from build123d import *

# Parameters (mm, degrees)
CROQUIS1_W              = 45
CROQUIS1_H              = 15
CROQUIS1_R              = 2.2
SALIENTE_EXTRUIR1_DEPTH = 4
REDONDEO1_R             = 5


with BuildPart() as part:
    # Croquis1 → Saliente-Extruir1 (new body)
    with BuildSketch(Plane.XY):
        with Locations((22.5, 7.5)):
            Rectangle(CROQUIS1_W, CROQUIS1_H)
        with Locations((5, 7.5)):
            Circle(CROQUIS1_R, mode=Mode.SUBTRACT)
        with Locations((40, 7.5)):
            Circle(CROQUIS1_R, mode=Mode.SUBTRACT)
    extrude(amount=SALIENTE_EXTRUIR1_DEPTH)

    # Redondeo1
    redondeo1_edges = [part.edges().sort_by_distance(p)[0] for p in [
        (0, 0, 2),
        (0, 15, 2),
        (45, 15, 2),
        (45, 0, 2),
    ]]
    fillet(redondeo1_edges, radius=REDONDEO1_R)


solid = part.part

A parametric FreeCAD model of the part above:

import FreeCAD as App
import Part
import Sketcher
from FreeCAD import Vector
Q = App.Units.Quantity


def edges_at(feature, points):
    """Names of the edges that pass closest to the given points."""
    edges = feature.Shape.Edges
    near = lambda p: min(range(len(edges)), key=lambda i: edges[i].distToShape(Part.Vertex(*p))[0])
    return sorted({f"Edge{near(p) + 1}" for p in points})

doc = App.newDocument("Part")
params = doc.addObject("Spreadsheet::Sheet", "Params")
for row, (alias, value) in enumerate([
    ("sketch1_diameter", "4.4 mm"),
    ("sketch1_width", "45 mm"),
    ("sketch1_height", "15 mm"),
    ("pad1_length", "4 mm"),
    ("fillet_radius", "5 mm"),
], start=1):
    params.set(f"A{row}", alias)
    params.set(f"B{row}", "=" + value)
    params.setAlias(f"B{row}", alias)

body = doc.addObject("PartDesign::Body", "Body")

sketch1 = doc.addObject("Sketcher::SketchObject", "Sketch")
body.addObject(sketch1)
sketch1.AttachmentSupport = (doc.XY_Plane, [""])
sketch1.MapMode = "FlatFace"
sketch1.addGeometry(Part.LineSegment(Vector(0, 15, 0), Vector(0, 0, 0)), False)
sketch1.addGeometry(Part.LineSegment(Vector(0, 0, 0), Vector(45, 0, 0)), False)
sketch1.addGeometry(Part.LineSegment(Vector(45, 0, 0), Vector(45, 15, 0)), False)
sketch1.addGeometry(Part.LineSegment(Vector(45, 15, 0), Vector(0, 15, 0)), False)
sketch1.addGeometry(Part.Circle(Vector(5, 7.5, 0), Vector(0, 0, 1), 2.2), False)
sketch1.addGeometry(Part.Circle(Vector(40, 7.5, 0), Vector(0, 0, 1), 2.2), False)
sketch1.addConstraint(Sketcher.Constraint("Coincident", 0, 2, 1, 1))
sketch1.addConstraint(Sketcher.Constraint("Coincident", 1, 2, 2, 1))
sketch1.addConstraint(Sketcher.Constraint("Coincident", 2, 2, 3, 1))
sketch1.addConstraint(Sketcher.Constraint("Coincident", 3, 2, 0, 1))
sketch1.addConstraint(Sketcher.Constraint("Vertical", 0))
sketch1.addConstraint(Sketcher.Constraint("Horizontal", 1))
sketch1.addConstraint(Sketcher.Constraint("Vertical", 2))
sketch1.addConstraint(Sketcher.Constraint("Horizontal", 3))
sketch1.addConstraint(Sketcher.Constraint("Coincident", 0, 2, -1, 1))
sketch1.addConstraint(Sketcher.Constraint("Equal", 4, 5))
sketch1.addConstraint(Sketcher.Constraint("Horizontal", 4, 3, 5, 3))
sketch1.addConstraint(Sketcher.Constraint("Diameter", 4, Q("4.4 mm")))
sketch1.addConstraint(Sketcher.Constraint("DistanceX", 1, 1, 1, 2, Q("45 mm")))
sketch1.addConstraint(Sketcher.Constraint("DistanceY", 0, 2, 0, 1, Q("15 mm")))
sketch1.addConstraint(Sketcher.Constraint("DistanceX", -1, 1, 4, 3, Q("5 mm")))
sketch1.addConstraint(Sketcher.Constraint("DistanceX", -1, 1, 5, 3, Q("40 mm")))
sketch1.addConstraint(Sketcher.Constraint("DistanceY", -1, 1, 4, 3, Q("7.5 mm")))
sketch1.setExpression("Constraints[11]", "Params.sketch1_diameter")
sketch1.setExpression("Constraints[12]", "Params.sketch1_width")
sketch1.setExpression("Constraints[13]", "Params.sketch1_height")
pad1 = doc.addObject("PartDesign::Pad", "Pad")
body.addObject(pad1)
pad1.Profile = sketch1
pad1.setExpression("Length", "Params.pad1_length")
doc.recompute()

fillet = doc.addObject("PartDesign::Fillet", "Fillet")
body.addObject(fillet)
fillet.Base = (pad1, edges_at(pad1, [
    (0, 0, 2),
    (0, 15, 2),
    (45, 15, 2),
    (45, 0, 2),
]))
fillet.setExpression("Radius", "Params.fillet_radius")

doc.recompute()
